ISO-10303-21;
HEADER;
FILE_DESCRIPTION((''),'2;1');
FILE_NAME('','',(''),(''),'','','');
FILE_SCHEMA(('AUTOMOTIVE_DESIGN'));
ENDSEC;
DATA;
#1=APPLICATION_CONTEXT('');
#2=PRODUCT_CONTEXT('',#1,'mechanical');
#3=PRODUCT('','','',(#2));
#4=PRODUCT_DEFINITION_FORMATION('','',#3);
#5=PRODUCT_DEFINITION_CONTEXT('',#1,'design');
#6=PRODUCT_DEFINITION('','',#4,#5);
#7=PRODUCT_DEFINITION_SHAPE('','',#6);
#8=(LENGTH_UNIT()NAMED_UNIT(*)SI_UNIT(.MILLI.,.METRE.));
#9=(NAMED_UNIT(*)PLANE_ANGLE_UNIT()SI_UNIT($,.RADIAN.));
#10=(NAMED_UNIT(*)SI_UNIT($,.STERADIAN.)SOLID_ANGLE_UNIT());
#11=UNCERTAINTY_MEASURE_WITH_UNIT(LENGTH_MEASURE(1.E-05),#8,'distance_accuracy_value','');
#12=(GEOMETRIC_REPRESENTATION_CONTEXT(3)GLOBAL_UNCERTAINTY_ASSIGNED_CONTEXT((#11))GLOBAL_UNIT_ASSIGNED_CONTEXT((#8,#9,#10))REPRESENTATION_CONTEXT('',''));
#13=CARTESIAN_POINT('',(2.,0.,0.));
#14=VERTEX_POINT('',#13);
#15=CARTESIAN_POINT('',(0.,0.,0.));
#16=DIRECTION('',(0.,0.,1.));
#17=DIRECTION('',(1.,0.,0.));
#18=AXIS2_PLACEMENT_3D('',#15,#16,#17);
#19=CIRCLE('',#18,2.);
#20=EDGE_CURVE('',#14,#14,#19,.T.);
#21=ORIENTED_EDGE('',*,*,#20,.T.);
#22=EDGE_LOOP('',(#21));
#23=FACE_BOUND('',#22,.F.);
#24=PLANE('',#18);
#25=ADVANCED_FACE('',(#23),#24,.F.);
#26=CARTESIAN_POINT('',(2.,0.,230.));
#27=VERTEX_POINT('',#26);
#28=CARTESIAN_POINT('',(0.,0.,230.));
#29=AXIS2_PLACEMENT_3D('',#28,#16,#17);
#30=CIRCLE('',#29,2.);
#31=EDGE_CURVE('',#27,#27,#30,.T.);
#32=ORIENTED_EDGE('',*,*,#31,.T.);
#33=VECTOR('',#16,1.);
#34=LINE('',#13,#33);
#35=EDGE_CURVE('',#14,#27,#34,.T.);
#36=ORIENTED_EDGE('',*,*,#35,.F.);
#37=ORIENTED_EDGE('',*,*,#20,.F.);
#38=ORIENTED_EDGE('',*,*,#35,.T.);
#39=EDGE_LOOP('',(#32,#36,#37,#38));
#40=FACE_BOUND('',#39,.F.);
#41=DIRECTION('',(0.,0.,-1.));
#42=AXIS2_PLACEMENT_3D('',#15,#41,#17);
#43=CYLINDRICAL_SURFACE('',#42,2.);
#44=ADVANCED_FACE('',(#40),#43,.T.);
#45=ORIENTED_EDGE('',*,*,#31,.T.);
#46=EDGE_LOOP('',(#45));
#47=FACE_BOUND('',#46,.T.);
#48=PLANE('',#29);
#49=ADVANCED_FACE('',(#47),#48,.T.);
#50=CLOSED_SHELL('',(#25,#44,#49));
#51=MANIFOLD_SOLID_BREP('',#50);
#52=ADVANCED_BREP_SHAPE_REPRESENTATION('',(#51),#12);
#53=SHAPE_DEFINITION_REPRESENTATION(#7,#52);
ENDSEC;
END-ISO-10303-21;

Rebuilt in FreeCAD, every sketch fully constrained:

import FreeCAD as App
import Part
import Sketcher

doc = App.newDocument("Part")
params = doc.addObject("Spreadsheet::Sheet", "Params")
for row, (alias, value) in enumerate([
    ("sketch1_diameter", "4 mm"),
    ("pad1_length", "230 mm"),
], start=1):
    params.set(f"A{row}", alias)
    params.set(f"B{row}", "=" + value)
    params.setAlias(f"B{row}", alias)

body = doc.addObject("PartDesign::Body", "Body")

# Sketch on XY plane
sketch1 = doc.addObject("Sketcher::SketchObject", "Sketch")
body.addObject(sketch1)
sketch1.AttachmentSupport = (doc.XY_Plane, [""])
sketch1.MapMode = "FlatFace"
sketch1.addGeometry(Part.Circle(App.Vector(0, 0, 0), App.Vector(0, 0, 1), 2), False)
sketch1.addConstraint([
    Sketcher.Constraint("Coincident", 0, 3, -1, 1),
    Sketcher.Constraint("Diameter", 0, 4.0),
])
sketch1.setExpression("Constraints[1]", "Params.sketch1_diameter")
pad1 = doc.addObject("PartDesign::Pad", "Pad")
body.addObject(pad1)
pad1.Profile = sketch1
pad1.setExpression("Length", "Params.pad1_length")

doc.recompute()
